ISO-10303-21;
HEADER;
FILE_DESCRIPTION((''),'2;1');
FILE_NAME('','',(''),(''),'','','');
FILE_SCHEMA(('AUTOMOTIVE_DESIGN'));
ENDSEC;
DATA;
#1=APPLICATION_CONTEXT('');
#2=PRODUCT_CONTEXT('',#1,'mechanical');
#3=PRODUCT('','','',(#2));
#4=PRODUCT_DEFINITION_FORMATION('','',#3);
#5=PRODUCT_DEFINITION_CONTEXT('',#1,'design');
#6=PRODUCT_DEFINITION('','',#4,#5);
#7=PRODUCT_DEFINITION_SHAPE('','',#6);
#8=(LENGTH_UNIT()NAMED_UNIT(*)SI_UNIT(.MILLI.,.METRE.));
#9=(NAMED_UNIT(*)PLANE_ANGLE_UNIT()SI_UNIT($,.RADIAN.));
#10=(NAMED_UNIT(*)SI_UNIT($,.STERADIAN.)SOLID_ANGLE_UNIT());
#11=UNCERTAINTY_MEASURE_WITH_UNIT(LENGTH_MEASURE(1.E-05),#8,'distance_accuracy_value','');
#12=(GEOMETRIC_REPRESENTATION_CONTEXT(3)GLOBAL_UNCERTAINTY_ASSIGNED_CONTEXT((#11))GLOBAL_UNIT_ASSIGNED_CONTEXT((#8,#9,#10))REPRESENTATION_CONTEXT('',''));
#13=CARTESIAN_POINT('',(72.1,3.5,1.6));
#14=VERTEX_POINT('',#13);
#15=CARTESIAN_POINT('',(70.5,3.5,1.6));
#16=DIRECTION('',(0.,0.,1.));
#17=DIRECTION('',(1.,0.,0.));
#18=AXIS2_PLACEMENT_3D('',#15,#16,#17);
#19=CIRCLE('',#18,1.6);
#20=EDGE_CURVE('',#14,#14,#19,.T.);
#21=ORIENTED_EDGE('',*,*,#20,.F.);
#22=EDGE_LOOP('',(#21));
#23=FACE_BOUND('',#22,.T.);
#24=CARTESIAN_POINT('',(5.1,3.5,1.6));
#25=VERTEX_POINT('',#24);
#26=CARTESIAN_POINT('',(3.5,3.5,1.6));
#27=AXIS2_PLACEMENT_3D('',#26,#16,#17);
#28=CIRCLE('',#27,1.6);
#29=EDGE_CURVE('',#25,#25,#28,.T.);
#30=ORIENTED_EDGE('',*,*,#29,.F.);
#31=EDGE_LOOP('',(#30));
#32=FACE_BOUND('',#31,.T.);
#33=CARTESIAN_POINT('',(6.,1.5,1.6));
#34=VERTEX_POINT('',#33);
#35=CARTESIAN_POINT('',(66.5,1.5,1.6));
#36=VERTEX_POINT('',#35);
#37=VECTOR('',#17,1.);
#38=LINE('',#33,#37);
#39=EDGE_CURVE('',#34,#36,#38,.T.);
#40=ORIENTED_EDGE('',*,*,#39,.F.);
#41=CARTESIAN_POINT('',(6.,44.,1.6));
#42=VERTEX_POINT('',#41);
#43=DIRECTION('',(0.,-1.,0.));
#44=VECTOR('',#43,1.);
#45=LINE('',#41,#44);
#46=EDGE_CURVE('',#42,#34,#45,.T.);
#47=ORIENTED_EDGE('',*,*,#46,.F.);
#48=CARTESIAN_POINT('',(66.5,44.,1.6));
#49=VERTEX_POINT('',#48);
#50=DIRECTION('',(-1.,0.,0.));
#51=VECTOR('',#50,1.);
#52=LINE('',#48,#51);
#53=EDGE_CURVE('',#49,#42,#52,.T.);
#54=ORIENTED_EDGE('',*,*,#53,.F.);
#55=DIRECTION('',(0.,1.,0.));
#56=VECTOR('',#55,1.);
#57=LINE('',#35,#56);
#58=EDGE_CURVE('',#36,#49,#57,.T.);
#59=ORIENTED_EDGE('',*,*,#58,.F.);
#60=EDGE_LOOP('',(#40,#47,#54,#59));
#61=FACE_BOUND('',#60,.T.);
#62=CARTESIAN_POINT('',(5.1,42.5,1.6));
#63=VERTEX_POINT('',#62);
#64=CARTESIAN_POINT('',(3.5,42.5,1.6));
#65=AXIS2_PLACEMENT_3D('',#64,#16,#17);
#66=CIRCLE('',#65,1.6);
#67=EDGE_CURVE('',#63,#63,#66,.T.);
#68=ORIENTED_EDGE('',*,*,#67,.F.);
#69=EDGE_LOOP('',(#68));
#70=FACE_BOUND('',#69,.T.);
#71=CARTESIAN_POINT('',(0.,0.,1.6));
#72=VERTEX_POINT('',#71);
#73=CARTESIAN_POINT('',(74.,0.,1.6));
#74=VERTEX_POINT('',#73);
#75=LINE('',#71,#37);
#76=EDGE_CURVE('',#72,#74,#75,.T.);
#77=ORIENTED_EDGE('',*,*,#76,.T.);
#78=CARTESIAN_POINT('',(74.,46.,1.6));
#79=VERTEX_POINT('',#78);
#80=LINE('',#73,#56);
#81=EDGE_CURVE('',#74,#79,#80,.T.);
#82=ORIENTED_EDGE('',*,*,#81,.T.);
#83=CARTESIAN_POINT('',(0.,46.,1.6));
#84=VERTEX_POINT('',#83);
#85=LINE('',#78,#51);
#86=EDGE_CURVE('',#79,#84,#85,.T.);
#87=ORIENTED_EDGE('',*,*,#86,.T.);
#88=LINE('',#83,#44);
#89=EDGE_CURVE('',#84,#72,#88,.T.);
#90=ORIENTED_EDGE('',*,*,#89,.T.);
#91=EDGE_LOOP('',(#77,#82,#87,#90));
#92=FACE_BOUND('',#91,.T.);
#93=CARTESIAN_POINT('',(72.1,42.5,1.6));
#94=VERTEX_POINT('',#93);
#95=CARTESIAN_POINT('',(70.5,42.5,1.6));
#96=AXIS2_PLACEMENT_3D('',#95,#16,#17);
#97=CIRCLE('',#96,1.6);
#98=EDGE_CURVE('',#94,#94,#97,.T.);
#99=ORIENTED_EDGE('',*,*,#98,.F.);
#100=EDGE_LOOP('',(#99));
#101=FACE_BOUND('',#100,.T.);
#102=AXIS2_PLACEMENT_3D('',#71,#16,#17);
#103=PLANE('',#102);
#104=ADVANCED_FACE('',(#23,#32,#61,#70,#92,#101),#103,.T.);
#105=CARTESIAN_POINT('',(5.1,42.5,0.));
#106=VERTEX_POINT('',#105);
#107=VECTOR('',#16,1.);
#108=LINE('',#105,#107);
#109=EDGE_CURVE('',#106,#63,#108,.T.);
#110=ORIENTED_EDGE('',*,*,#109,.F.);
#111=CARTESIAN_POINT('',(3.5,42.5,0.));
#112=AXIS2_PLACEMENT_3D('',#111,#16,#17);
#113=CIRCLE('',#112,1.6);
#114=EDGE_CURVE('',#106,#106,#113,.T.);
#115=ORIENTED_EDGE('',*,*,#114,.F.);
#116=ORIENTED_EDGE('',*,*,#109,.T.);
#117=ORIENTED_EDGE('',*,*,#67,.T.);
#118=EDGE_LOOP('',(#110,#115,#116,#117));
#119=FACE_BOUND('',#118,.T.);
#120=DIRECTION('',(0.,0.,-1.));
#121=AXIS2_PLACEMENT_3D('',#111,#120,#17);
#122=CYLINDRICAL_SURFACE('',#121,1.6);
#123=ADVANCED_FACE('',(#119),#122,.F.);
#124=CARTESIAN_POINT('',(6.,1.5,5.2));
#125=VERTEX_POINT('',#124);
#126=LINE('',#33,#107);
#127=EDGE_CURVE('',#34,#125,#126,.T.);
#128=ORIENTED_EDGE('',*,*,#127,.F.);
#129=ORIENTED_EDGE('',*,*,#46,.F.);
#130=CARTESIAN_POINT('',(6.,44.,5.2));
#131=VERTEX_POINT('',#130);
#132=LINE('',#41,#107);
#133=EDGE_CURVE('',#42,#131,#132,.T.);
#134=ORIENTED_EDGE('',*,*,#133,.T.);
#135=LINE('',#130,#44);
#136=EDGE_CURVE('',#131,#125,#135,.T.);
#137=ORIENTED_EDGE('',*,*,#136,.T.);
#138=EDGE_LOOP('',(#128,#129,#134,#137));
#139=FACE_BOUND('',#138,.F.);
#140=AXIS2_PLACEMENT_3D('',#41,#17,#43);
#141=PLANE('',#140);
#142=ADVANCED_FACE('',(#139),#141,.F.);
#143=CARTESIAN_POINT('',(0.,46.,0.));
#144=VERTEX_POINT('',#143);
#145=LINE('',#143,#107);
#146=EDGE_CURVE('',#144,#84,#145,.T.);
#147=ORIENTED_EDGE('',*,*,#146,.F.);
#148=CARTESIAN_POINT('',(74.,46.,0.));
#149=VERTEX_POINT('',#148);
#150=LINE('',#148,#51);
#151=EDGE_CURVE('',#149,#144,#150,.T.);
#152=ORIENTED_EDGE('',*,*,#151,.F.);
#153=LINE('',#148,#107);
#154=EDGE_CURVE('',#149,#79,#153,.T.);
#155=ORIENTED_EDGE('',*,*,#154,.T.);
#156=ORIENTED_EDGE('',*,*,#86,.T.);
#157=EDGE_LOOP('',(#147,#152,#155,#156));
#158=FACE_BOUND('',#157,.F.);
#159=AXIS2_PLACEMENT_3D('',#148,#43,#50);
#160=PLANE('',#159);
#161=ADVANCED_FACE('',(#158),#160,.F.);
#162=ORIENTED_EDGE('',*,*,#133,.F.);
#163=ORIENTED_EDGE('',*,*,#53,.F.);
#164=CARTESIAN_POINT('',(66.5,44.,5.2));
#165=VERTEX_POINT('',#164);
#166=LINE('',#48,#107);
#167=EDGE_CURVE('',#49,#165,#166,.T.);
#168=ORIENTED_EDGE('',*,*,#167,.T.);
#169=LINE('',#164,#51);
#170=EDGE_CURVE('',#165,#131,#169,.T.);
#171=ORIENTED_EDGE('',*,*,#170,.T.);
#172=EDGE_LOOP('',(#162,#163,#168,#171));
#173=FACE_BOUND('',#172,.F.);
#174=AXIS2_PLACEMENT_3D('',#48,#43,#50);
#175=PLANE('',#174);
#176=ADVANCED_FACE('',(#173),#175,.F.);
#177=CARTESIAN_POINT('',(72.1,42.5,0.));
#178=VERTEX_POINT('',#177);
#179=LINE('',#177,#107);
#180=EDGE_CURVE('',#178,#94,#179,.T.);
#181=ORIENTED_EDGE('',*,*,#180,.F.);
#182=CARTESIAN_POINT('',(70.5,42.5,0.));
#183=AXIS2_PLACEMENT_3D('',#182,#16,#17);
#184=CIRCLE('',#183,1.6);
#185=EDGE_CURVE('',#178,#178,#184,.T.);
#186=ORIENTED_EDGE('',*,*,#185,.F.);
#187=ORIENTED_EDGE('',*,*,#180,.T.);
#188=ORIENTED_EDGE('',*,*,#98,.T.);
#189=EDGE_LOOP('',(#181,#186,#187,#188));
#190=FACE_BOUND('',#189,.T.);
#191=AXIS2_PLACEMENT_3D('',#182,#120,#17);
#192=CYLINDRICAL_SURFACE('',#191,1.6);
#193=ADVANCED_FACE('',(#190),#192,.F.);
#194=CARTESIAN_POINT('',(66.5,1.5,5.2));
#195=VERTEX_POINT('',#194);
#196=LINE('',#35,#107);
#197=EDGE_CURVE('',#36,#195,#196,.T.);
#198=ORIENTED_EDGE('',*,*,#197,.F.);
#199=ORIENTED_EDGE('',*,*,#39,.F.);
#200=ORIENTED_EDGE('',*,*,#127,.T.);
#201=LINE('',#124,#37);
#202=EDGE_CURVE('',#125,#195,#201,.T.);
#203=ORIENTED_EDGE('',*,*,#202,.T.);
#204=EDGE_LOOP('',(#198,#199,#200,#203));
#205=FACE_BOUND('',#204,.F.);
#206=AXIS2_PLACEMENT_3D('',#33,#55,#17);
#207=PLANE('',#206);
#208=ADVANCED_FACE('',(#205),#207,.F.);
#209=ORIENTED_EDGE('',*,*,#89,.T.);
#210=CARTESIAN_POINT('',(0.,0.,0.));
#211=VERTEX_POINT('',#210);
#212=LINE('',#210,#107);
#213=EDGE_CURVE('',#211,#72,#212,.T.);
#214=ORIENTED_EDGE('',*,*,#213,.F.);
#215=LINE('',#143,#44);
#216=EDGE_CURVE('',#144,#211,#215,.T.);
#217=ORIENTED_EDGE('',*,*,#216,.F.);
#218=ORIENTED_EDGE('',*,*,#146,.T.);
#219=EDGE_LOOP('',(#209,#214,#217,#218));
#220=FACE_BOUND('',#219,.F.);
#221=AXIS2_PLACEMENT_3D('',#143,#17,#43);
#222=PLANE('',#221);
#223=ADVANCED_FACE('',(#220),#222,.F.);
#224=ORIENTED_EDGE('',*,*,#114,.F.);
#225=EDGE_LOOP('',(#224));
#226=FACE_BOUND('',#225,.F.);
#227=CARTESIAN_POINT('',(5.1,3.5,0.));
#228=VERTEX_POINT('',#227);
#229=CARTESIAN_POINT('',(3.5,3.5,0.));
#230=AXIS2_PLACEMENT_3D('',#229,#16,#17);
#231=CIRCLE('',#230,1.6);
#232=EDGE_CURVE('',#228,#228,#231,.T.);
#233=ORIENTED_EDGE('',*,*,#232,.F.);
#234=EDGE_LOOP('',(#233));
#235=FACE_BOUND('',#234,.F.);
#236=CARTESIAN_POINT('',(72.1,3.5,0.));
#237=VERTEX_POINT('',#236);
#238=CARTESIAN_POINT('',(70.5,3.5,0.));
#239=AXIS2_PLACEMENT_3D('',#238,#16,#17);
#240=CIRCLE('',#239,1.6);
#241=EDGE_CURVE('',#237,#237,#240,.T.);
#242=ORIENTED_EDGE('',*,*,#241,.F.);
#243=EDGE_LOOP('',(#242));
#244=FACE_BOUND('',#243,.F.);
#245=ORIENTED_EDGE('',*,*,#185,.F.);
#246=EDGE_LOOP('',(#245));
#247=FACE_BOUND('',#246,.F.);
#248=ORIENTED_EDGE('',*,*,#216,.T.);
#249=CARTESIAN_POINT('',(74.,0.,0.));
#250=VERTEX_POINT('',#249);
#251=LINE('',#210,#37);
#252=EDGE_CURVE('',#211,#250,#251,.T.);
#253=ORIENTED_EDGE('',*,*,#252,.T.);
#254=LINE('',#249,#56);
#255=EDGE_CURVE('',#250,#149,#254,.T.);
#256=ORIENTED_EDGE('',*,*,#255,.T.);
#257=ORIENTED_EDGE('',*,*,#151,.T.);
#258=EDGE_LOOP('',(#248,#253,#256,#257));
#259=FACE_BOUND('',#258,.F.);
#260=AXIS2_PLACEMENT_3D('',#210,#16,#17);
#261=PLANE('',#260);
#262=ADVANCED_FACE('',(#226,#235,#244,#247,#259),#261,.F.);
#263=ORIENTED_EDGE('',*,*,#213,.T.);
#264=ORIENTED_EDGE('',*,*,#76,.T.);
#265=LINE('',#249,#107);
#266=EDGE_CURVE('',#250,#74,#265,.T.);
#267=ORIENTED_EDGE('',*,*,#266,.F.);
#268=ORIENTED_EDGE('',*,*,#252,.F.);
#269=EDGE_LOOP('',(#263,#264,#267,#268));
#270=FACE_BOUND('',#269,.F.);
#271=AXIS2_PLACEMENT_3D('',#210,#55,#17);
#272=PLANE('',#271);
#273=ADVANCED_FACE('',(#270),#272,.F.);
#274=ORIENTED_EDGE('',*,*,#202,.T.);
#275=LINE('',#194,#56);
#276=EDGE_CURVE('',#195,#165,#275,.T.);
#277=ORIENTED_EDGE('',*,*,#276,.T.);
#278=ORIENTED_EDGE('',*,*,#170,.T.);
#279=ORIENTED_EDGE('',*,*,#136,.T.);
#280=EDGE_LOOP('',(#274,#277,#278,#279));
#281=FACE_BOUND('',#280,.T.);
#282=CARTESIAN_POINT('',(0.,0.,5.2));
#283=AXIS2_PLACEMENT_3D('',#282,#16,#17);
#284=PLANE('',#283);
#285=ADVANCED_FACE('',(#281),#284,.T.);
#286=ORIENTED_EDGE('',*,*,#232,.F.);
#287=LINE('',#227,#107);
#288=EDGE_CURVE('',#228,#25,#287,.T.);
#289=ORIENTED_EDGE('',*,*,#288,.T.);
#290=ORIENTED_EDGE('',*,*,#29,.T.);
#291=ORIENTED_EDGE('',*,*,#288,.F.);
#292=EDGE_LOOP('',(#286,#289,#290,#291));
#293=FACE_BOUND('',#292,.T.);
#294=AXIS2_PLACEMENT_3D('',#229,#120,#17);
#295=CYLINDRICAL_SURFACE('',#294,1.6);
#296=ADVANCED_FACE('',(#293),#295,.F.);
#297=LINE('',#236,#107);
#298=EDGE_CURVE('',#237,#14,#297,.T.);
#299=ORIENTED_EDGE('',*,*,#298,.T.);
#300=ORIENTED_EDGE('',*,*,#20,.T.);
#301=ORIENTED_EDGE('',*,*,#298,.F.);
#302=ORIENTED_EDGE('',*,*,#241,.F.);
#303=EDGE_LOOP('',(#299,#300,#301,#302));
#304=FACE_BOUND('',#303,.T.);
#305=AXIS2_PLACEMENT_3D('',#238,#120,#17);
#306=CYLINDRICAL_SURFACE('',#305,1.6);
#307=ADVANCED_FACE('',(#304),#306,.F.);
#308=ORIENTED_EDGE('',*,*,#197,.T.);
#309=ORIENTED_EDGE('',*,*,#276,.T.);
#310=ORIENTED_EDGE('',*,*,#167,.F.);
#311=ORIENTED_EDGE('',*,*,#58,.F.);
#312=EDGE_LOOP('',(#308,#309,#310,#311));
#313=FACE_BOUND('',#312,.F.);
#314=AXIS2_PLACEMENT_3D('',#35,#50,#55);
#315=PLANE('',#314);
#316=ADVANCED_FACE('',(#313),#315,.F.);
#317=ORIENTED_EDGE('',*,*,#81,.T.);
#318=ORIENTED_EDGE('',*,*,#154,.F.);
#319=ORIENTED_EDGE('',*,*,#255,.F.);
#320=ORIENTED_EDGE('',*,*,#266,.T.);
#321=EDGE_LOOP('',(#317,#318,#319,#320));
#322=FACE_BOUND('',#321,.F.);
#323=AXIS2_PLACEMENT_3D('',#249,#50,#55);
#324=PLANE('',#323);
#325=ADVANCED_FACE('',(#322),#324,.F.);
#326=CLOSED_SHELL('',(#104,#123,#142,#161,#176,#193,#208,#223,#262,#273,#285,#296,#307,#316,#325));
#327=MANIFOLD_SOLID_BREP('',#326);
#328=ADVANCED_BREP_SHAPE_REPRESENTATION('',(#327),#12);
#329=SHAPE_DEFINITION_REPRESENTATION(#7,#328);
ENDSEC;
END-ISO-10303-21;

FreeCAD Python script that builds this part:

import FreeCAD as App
import Part
import Sketcher
from FreeCAD import Vector
Q = App.Units.Quantity


def add_polygon(sketch, points):
    """Adds a closed chain of lines whose ends are joined by coincident constraints."""
    first, n = sketch.GeometryCount, len(points)
    for a, b in zip(points, points[1:] + points[:1]):
        sketch.addGeometry(Part.LineSegment(App.Vector(*a, 0), App.Vector(*b, 0)), False)
    for i in range(n):
        sketch.addConstraint(Sketcher.Constraint("Coincident", first + i, 2, first + (i + 1) % n, 1))

doc = App.newDocument("Part")
body = doc.addObject("PartDesign::Body", "Body")

sketch1 = body.newObject("Sketcher::SketchObject", "Sketch")
sketch1.AttachmentSupport = (doc.getObject("XY_Plane"), [""])
sketch1.MapMode = "FlatFace"
add_polygon(sketch1, [(0, 46), (0, 0), (74, 0), (74, 46)])
sketch1.addGeometry(Part.Circle(Vector(3.5, 3.5, 0), Vector(0, 0, 1), 1.6), False)
sketch1.addGeometry(Part.Circle(Vector(70.5, 3.5, 0), Vector(0, 0, 1), 1.6), False)
sketch1.addGeometry(Part.Circle(Vector(3.5, 42.5, 0), Vector(0, 0, 1), 1.6), False)
sketch1.addGeometry(Part.Circle(Vector(70.5, 42.5, 0), Vector(0, 0, 1), 1.6), False)
sketch1.addConstraint(Sketcher.Constraint("Vertical", 0))
sketch1.addConstraint(Sketcher.Constraint("Horizontal", 1))
sketch1.addConstraint(Sketcher.Constraint("Vertical", 2))
sketch1.addConstraint(Sketcher.Constraint("Horizontal", 3))
sketch1.addConstraint(Sketcher.Constraint("Coincident", 0, 2, -1, 1))
sketch1.addConstraint(Sketcher.Constraint("Equal", 4, 5))
sketch1.addConstraint(Sketcher.Constraint("Equal", 5, 6))
sketch1.addConstraint(Sketcher.Constraint("Equal", 6, 7))
sketch1.addConstraint(Sketcher.Constraint("Horizontal", 4, 3, 5, 3))
sketch1.addConstraint(Sketcher.Constraint("Horizontal", 6, 3, 7, 3))
sketch1.addConstraint(Sketcher.Constraint("Vertical", 4, 3, 6, 3))
sketch1.addConstraint(Sketcher.Constraint("Vertical", 5, 3, 7, 3))
sketch1.addConstraint(Sketcher.Constraint("Diameter", 4, Q("3.2 mm")))
sketch1.addConstraint(Sketcher.Constraint("DistanceX", 1, 1, 1, 2, Q("74 mm")))
sketch1.addConstraint(Sketcher.Constraint("DistanceY", 0, 2, 0, 1, Q("46 mm")))
sketch1.addConstraint(Sketcher.Constraint("DistanceX", 4, 3, 5, 3, Q("67 mm")))
sketch1.addConstraint(Sketcher.Constraint("DistanceY", 4, 3, 6, 3, Q("39 mm")))
sketch1.addConstraint(Sketcher.Constraint("DistanceX", -1, 1, 4, 3, Q("3.5 mm")))
sketch1.addConstraint(Sketcher.Constraint("DistanceY", -1, 1, 4, 3, Q("3.5 mm")))
pad1 = body.newObject("PartDesign::Pad", "Pad")
pad1.Profile = sketch1
pad1.Length = 1.6

sketch2 = body.newObject("Sketcher::SketchObject", "Sketch001")
sketch2.AttachmentSupport = (doc.getObject("XY_Plane"), [""])
sketch2.MapMode = "FlatFace"
sketch2.AttachmentOffset = App.Placement(Vector(0, 0, 1.6), App.Rotation())
add_polygon(sketch2, [(6, 44), (6, 1.5), (66.5, 1.5), (66.5, 44)])
sketch2.addConstraint(Sketcher.Constraint("Vertical", 0))
sketch2.addConstraint(Sketcher.Constraint("Horizontal", 1))
sketch2.addConstraint(Sketcher.Constraint("Vertical", 2))
sketch2.addConstraint(Sketcher.Constraint("Horizontal", 3))
sketch2.addConstraint(Sketcher.Constraint("DistanceX", 1, 1, 1, 2, Q("60.5 mm")))
sketch2.addConstraint(Sketcher.Constraint("DistanceY", 0, 2, 0, 1, Q("42.5 mm")))
sketch2.addConstraint(Sketcher.Constraint("DistanceX", -1, 1, 0, 2, Q("6 mm")))
sketch2.addConstraint(Sketcher.Constraint("DistanceY", -1, 1, 2, 2, Q("44 mm")))
pad2 = body.newObject("PartDesign::Pad", "Pad001")
pad2.Profile = sketch2
pad2.Length = 3.6

doc.recompute()
